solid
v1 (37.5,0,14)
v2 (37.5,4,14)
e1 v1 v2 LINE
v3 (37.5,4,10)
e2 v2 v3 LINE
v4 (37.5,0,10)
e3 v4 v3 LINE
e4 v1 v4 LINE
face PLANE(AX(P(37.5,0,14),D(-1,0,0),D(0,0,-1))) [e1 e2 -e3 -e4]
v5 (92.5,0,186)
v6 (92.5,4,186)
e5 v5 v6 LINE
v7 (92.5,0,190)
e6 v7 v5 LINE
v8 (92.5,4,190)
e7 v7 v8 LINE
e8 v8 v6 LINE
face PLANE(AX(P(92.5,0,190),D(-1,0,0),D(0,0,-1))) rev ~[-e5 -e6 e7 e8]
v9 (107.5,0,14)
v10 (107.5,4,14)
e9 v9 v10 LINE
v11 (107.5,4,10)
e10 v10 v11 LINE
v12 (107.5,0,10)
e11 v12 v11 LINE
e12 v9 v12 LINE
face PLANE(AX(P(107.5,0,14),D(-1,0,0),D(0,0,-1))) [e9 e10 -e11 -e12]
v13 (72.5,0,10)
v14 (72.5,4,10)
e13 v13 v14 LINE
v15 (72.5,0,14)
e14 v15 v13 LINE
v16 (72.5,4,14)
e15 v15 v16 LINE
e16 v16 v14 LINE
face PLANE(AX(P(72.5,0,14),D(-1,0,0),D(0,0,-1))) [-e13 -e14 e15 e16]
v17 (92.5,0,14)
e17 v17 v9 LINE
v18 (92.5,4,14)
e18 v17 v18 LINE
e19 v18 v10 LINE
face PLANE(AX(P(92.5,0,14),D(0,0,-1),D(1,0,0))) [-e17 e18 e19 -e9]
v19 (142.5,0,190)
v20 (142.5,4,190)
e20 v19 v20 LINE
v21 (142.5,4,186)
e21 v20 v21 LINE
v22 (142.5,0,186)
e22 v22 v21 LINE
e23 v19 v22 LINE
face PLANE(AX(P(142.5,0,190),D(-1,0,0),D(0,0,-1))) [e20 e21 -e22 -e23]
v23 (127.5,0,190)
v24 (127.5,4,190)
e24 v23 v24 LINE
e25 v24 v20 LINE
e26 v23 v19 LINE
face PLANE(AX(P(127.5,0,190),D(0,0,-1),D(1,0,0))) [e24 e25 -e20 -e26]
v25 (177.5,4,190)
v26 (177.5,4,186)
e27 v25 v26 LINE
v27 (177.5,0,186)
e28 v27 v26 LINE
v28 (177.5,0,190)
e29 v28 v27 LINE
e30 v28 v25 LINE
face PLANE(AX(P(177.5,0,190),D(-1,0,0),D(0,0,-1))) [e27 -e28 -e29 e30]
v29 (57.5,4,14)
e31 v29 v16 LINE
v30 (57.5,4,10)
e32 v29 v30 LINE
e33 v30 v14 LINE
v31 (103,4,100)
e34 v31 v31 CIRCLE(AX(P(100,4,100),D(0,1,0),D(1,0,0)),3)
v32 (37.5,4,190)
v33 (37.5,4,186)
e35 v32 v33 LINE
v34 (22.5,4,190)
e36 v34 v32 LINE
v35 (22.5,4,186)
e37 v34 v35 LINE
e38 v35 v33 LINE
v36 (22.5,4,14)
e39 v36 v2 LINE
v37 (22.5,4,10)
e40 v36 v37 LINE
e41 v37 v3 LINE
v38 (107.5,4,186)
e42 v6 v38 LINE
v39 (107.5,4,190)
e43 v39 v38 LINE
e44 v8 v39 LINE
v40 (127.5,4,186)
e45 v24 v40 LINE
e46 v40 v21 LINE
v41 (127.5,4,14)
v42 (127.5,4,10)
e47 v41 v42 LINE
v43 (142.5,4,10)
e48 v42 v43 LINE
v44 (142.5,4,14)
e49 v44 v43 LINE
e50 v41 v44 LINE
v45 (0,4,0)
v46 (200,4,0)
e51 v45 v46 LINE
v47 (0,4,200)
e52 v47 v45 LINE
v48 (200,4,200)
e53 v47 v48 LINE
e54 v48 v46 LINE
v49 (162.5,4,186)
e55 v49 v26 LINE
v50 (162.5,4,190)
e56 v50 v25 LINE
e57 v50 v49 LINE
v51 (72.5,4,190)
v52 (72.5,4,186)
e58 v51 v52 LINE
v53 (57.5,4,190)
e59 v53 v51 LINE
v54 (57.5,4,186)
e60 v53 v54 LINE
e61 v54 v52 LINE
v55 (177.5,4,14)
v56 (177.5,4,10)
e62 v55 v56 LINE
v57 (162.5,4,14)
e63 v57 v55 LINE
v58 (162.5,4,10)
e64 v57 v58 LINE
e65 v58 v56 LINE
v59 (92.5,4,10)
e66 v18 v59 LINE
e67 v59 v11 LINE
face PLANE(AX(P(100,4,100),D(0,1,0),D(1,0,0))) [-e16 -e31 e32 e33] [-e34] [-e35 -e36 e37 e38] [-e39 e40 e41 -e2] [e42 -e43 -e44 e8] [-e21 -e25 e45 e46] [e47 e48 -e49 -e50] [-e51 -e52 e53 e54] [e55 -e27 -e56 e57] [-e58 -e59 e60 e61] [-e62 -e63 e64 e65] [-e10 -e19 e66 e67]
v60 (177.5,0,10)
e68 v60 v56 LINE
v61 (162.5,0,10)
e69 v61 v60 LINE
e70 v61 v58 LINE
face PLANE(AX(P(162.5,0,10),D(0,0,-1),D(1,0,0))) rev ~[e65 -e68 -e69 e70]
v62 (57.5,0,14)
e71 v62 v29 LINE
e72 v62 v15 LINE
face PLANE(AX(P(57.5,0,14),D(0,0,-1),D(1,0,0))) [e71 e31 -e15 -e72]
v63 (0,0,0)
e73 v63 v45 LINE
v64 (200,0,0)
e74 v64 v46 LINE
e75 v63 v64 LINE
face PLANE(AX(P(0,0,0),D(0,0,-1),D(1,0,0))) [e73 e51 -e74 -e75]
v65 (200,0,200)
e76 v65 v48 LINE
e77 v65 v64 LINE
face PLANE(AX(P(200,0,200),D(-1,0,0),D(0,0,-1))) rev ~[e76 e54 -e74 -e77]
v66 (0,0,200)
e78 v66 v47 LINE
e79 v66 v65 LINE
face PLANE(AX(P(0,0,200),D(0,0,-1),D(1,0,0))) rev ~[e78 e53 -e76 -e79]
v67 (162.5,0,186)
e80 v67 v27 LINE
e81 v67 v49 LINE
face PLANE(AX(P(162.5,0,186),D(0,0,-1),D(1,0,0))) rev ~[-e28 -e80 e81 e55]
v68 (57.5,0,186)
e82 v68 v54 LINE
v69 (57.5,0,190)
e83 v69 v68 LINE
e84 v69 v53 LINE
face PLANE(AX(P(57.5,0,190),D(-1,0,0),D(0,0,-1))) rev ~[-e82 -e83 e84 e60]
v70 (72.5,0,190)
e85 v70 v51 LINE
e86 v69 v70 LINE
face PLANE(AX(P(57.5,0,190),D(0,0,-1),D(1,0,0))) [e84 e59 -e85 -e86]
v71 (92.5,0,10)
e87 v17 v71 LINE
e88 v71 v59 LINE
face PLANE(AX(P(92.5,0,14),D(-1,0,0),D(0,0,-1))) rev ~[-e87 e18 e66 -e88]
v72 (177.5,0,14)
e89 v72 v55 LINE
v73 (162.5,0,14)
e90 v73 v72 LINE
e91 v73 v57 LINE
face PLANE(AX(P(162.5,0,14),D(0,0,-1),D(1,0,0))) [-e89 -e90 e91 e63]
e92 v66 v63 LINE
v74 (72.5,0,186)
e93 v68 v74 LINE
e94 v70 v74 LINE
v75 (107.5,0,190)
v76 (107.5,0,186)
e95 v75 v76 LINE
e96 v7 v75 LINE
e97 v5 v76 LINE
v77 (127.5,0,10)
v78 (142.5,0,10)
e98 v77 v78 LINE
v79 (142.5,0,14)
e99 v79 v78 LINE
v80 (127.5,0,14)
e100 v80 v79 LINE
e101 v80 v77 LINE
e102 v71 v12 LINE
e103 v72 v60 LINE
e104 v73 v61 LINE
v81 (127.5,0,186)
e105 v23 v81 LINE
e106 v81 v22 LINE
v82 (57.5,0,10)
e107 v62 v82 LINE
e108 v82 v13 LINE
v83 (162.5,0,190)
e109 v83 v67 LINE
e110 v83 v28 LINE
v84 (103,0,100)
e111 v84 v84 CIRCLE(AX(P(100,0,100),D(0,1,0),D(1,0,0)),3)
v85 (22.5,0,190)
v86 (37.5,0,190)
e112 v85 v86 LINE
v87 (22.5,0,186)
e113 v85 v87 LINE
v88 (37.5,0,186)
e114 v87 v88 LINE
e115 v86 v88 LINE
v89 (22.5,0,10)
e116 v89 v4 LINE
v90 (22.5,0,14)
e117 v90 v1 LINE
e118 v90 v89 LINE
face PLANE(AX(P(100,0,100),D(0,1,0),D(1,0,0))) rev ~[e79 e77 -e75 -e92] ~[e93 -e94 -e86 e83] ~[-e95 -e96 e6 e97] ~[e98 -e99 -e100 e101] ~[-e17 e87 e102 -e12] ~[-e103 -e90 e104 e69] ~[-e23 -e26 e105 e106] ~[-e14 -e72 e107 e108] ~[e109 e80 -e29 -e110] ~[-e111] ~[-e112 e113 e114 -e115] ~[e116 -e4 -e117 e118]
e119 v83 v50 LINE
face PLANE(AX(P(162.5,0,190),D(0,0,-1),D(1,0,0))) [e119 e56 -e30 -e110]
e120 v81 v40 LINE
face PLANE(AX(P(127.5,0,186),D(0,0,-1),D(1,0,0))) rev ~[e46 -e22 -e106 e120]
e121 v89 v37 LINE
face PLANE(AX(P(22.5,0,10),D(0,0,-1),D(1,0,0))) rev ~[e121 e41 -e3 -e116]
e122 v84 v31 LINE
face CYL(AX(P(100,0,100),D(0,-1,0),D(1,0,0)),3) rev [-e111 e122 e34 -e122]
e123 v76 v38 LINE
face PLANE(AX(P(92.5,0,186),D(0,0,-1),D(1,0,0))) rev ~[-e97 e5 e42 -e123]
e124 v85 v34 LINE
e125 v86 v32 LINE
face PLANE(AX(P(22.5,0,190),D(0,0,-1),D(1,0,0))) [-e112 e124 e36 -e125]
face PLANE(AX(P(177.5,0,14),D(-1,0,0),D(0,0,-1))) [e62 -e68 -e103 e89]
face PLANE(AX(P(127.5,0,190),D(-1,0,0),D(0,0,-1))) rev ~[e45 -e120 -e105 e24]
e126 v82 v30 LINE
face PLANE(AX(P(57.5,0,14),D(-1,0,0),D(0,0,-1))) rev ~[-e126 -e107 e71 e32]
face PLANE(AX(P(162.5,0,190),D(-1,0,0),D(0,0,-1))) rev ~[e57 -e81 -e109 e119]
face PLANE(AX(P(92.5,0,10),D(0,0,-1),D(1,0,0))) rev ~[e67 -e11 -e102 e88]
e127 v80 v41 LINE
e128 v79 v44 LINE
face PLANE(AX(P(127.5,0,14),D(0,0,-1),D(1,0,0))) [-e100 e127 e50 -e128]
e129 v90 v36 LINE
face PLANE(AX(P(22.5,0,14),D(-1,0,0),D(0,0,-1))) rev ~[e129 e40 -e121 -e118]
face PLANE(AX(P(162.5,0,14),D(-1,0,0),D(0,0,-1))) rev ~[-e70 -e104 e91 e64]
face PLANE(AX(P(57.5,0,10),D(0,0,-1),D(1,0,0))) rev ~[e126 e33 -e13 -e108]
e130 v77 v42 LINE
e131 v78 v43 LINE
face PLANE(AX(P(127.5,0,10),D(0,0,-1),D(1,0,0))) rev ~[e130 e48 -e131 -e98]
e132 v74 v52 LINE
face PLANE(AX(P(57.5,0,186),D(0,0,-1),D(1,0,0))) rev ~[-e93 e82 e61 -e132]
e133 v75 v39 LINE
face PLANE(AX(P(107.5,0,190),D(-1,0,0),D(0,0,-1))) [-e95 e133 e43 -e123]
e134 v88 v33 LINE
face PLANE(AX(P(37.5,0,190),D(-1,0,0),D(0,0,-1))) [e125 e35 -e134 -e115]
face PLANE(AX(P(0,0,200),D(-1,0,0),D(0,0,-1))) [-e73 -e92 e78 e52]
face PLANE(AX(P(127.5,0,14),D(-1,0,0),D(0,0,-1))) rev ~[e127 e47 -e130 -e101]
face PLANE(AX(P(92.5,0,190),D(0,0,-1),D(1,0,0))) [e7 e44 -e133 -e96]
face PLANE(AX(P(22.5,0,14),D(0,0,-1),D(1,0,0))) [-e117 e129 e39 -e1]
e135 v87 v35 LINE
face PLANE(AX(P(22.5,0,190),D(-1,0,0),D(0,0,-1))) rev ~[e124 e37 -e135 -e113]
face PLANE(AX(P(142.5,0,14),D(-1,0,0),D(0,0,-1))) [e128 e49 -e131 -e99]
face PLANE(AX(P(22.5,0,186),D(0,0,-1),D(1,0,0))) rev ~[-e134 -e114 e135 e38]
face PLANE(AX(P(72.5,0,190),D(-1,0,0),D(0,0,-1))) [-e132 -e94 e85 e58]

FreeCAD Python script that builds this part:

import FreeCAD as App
import Part
import Sketcher
Q = App.Units.Quantity


def add_polygon(sketch, points):
    """Adds a closed chain of lines whose ends are joined by coincident constraints."""
    first, n = sketch.GeometryCount, len(points)
    for a, b in zip(points, points[1:] + points[:1]):
        sketch.addGeometry(Part.LineSegment(App.Vector(*a, 0), App.Vector(*b, 0)), False)
    for i in range(n):
        sketch.addConstraint(Sketcher.Constraint("Coincident", first + i, 2, first + (i + 1) % n, 1))

doc = App.newDocument("Part")
params = doc.addObject("Spreadsheet::Sheet", "Params")
for row, (alias, value) in enumerate([
    ("sketch1_diameter", "6 mm"),
    ("sketch1_width", "200 mm"),
    ("sketch1_width2", "15 mm"),
    ("sketch1_height", "4 mm"),
    ("pad1_length", "4 mm"),
], start=1):
    params.set(f"A{row}", alias)
    params.set(f"B{row}", "=" + value)
    params.setAlias(f"B{row}", alias)

body = doc.addObject("PartDesign::Body", "Body")

# Sketch on XZ plane
sketch1 = body.newObject("Sketcher::SketchObject", "Sketch")
sketch1.AttachmentSupport = (doc.getObject("XZ_Plane"), [""])
sketch1.MapMode = "FlatFace"
add_polygon(sketch1, [(0, 0), (0, 200), (200, 200), (200, 0)])  # lines 0-3
add_polygon(sketch1, [(37.5, 190), (22.5, 190), (22.5, 186), (37.5, 186)])  # lines 4-7
add_polygon(sketch1, [(72.5, 190), (57.5, 190), (57.5, 186), (72.5, 186)])  # lines 8-11
add_polygon(sketch1, [(107.5, 190), (92.5, 190), (92.5, 186), (107.5, 186)])  # lines 12-15
add_polygon(sketch1, [(142.5, 190), (127.5, 190), (127.5, 186), (142.5, 186)])  # lines 16-19
add_polygon(sketch1, [(177.5, 190), (162.5, 190), (162.5, 186), (177.5, 186)])  # lines 20-23
add_polygon(sketch1, [(37.5, 14), (22.5, 14), (22.5, 10), (37.5, 10)])  # lines 24-27
add_polygon(sketch1, [(72.5, 14), (57.5, 14), (57.5, 10), (72.5, 10)])  # lines 28-31
sketch1.addGeometry(Part.Circle(App.Vector(100, 100, 0), App.Vector(0, 0, 1), 3), False)  # 32
add_polygon(sketch1, [(107.5, 14), (92.5, 14), (92.5, 10), (107.5, 10)])  # lines 33-36
add_polygon(sketch1, [(142.5, 14), (127.5, 14), (127.5, 10), (142.5, 10)])  # lines 37-40
add_polygon(sketch1, [(177.5, 14), (162.5, 14), (162.5, 10), (177.5, 10)])  # lines 41-44
sketch1.addConstraint([
    Sketcher.Constraint("Vertical", 0),
    Sketcher.Constraint("Horizontal", 1),
    Sketcher.Constraint("Vertical", 2),
    Sketcher.Constraint("Horizontal", 3),
    Sketcher.Constraint("Horizontal", 4),
    Sketcher.Constraint("Vertical", 5),
    Sketcher.Constraint("Horizontal", 6),
    Sketcher.Constraint("Vertical", 7),
    Sketcher.Constraint("Horizontal", 8),
    Sketcher.Constraint("Vertical", 9),
    Sketcher.Constraint("Horizontal", 10),
    Sketcher.Constraint("Vertical", 11),
    Sketcher.Constraint("Horizontal", 12),
    Sketcher.Constraint("Vertical", 13),
    Sketcher.Constraint("Horizontal", 14),
    Sketcher.Constraint("Vertical", 15),
    Sketcher.Constraint("Horizontal", 16),
    Sketcher.Constraint("Vertical", 17),
    Sketcher.Constraint("Horizontal", 18),
    Sketcher.Constraint("Vertical", 19),
    Sketcher.Constraint("Horizontal", 20),
    Sketcher.Constraint("Vertical", 21),
    Sketcher.Constraint("Horizontal", 22),
    Sketcher.Constraint("Vertical", 23),
    Sketcher.Constraint("Horizontal", 24),
    Sketcher.Constraint("Vertical", 25),
    Sketcher.Constraint("Horizontal", 26),
    Sketcher.Constraint("Vertical", 27),
    Sketcher.Constraint("Horizontal", 28),
    Sketcher.Constraint("Vertical", 29),
    Sketcher.Constraint("Horizontal", 30),
    Sketcher.Constraint("Vertical", 31),
    Sketcher.Constraint("Horizontal", 33),
    Sketcher.Constraint("Vertical", 34),
    Sketcher.Constraint("Horizontal", 35),
    Sketcher.Constraint("Vertical", 36),
    Sketcher.Constraint("Horizontal", 37),
    Sketcher.Constraint("Vertical", 38),
    Sketcher.Constraint("Horizontal", 39),
    Sketcher.Constraint("Vertical", 40),
    Sketcher.Constraint("Horizontal", 41),
    Sketcher.Constraint("Vertical", 42),
    Sketcher.Constraint("Horizontal", 43),
    Sketcher.Constraint("Vertical", 44),
    Sketcher.Constraint("Coincident", 3, 2, -1, 1),
    Sketcher.Constraint("Horizontal", 7, 2, 8, 2),
    Sketcher.Constraint("Horizontal", 6, 2, 9, 2),
    Sketcher.Constraint("Horizontal", 11, 2, 12, 2),
    Sketcher.Constraint("Horizontal", 10, 2, 13, 2),
    Sketcher.Constraint("Horizontal", 15, 2, 16, 2),
    Sketcher.Constraint("Horizontal", 14, 2, 17, 2),
    Sketcher.Constraint("Horizontal", 19, 2, 20, 2),
    Sketcher.Constraint("Horizontal", 18, 2, 21, 2),
    Sketcher.Constraint("Horizontal", 27, 2, 28, 2),
    Sketcher.Constraint("Horizontal", 26, 2, 29, 2),
    Sketcher.Constraint("Horizontal", 31, 2, 33, 2),
    Sketcher.Constraint("Horizontal", 30, 2, 34, 2),
    Sketcher.Constraint("Horizontal", 36, 2, 37, 2),
    Sketcher.Constraint("Horizontal", 35, 2, 38, 2),
    Sketcher.Constraint("Horizontal", 40, 2, 41, 2),
    Sketcher.Constraint("Horizontal", 39, 2, 42, 2),
    Sketcher.Constraint("Vertical", 5, 2, 24, 2),
    Sketcher.Constraint("Vertical", 7, 2, 26, 2),
    Sketcher.Constraint("Vertical", 9, 2, 28, 2),
    Sketcher.Constraint("Vertical", 11, 2, 30, 2),
    Sketcher.Constraint("Vertical", 13, 2, 33, 2),
    Sketcher.Constraint("Vertical", 15, 2, 35, 2),
    Sketcher.Constraint("Vertical", 17, 2, 37, 2),
    Sketcher.Constraint("Vertical", 19, 2, 39, 2),
    Sketcher.Constraint("Vertical", 21, 2, 41, 2),
    Sketcher.Constraint("Vertical", 23, 2, 43, 2),
    Sketcher.Constraint("Equal", 6, 8),
    Sketcher.Constraint("Equal", 10, 12),
    Sketcher.Constraint("Equal", 14, 16),
    Sketcher.Constraint("Equal", 18, 20),
    Sketcher.Constraint("Equal", 3, 0),
    Sketcher.Constraint("Equal", 23, 25),
    Sketcher.Constraint("Diameter", 32, Q("6 mm")),
    Sketcher.Constraint("DistanceX", 1, 1, 1, 2, Q("200 mm")),
    Sketcher.Constraint("DistanceX", 4, 2, 4, 1, Q("15 mm")),
    Sketcher.Constraint("DistanceY", 5, 2, 5, 1, Q("4 mm")),
    Sketcher.Constraint("DistanceX", -1, 1, 32, 3, Q("100 mm")),
    Sketcher.Constraint("DistanceY", -1, 1, 32, 3, Q("100 mm")),
    Sketcher.Constraint("DistanceY", -1, 1, 4, 2, Q("190 mm")),
    Sketcher.Constraint("DistanceY", -1, 1, 24, 2, Q("14 mm")),
    Sketcher.Constraint("DistanceX", 7, 2, 8, 2, Q("20 mm")),
    Sketcher.Constraint("DistanceX", 11, 2, 12, 2, Q("20 mm")),
    Sketcher.Constraint("DistanceX", 15, 2, 16, 2, Q("20 mm")),
    Sketcher.Constraint("DistanceX", 19, 2, 20, 2, Q("20 mm")),
    Sketcher.Constraint("DistanceX", -1, 1, 4, 2, Q("22.5 mm")),
])
sketch1.setExpression("Constraints[121]", "Params.sketch1_diameter")
sketch1.setExpression("Constraints[122]", "Params.sketch1_width")
sketch1.setExpression("Constraints[123]", "Params.sketch1_width2")
sketch1.setExpression("Constraints[124]", "Params.sketch1_height")
pad1 = body.newObject("PartDesign::Pad", "Pad")
pad1.Profile = sketch1
pad1.setExpression("Length", "Params.pad1_length")
pad1.Reversed = True

doc.recompute()
